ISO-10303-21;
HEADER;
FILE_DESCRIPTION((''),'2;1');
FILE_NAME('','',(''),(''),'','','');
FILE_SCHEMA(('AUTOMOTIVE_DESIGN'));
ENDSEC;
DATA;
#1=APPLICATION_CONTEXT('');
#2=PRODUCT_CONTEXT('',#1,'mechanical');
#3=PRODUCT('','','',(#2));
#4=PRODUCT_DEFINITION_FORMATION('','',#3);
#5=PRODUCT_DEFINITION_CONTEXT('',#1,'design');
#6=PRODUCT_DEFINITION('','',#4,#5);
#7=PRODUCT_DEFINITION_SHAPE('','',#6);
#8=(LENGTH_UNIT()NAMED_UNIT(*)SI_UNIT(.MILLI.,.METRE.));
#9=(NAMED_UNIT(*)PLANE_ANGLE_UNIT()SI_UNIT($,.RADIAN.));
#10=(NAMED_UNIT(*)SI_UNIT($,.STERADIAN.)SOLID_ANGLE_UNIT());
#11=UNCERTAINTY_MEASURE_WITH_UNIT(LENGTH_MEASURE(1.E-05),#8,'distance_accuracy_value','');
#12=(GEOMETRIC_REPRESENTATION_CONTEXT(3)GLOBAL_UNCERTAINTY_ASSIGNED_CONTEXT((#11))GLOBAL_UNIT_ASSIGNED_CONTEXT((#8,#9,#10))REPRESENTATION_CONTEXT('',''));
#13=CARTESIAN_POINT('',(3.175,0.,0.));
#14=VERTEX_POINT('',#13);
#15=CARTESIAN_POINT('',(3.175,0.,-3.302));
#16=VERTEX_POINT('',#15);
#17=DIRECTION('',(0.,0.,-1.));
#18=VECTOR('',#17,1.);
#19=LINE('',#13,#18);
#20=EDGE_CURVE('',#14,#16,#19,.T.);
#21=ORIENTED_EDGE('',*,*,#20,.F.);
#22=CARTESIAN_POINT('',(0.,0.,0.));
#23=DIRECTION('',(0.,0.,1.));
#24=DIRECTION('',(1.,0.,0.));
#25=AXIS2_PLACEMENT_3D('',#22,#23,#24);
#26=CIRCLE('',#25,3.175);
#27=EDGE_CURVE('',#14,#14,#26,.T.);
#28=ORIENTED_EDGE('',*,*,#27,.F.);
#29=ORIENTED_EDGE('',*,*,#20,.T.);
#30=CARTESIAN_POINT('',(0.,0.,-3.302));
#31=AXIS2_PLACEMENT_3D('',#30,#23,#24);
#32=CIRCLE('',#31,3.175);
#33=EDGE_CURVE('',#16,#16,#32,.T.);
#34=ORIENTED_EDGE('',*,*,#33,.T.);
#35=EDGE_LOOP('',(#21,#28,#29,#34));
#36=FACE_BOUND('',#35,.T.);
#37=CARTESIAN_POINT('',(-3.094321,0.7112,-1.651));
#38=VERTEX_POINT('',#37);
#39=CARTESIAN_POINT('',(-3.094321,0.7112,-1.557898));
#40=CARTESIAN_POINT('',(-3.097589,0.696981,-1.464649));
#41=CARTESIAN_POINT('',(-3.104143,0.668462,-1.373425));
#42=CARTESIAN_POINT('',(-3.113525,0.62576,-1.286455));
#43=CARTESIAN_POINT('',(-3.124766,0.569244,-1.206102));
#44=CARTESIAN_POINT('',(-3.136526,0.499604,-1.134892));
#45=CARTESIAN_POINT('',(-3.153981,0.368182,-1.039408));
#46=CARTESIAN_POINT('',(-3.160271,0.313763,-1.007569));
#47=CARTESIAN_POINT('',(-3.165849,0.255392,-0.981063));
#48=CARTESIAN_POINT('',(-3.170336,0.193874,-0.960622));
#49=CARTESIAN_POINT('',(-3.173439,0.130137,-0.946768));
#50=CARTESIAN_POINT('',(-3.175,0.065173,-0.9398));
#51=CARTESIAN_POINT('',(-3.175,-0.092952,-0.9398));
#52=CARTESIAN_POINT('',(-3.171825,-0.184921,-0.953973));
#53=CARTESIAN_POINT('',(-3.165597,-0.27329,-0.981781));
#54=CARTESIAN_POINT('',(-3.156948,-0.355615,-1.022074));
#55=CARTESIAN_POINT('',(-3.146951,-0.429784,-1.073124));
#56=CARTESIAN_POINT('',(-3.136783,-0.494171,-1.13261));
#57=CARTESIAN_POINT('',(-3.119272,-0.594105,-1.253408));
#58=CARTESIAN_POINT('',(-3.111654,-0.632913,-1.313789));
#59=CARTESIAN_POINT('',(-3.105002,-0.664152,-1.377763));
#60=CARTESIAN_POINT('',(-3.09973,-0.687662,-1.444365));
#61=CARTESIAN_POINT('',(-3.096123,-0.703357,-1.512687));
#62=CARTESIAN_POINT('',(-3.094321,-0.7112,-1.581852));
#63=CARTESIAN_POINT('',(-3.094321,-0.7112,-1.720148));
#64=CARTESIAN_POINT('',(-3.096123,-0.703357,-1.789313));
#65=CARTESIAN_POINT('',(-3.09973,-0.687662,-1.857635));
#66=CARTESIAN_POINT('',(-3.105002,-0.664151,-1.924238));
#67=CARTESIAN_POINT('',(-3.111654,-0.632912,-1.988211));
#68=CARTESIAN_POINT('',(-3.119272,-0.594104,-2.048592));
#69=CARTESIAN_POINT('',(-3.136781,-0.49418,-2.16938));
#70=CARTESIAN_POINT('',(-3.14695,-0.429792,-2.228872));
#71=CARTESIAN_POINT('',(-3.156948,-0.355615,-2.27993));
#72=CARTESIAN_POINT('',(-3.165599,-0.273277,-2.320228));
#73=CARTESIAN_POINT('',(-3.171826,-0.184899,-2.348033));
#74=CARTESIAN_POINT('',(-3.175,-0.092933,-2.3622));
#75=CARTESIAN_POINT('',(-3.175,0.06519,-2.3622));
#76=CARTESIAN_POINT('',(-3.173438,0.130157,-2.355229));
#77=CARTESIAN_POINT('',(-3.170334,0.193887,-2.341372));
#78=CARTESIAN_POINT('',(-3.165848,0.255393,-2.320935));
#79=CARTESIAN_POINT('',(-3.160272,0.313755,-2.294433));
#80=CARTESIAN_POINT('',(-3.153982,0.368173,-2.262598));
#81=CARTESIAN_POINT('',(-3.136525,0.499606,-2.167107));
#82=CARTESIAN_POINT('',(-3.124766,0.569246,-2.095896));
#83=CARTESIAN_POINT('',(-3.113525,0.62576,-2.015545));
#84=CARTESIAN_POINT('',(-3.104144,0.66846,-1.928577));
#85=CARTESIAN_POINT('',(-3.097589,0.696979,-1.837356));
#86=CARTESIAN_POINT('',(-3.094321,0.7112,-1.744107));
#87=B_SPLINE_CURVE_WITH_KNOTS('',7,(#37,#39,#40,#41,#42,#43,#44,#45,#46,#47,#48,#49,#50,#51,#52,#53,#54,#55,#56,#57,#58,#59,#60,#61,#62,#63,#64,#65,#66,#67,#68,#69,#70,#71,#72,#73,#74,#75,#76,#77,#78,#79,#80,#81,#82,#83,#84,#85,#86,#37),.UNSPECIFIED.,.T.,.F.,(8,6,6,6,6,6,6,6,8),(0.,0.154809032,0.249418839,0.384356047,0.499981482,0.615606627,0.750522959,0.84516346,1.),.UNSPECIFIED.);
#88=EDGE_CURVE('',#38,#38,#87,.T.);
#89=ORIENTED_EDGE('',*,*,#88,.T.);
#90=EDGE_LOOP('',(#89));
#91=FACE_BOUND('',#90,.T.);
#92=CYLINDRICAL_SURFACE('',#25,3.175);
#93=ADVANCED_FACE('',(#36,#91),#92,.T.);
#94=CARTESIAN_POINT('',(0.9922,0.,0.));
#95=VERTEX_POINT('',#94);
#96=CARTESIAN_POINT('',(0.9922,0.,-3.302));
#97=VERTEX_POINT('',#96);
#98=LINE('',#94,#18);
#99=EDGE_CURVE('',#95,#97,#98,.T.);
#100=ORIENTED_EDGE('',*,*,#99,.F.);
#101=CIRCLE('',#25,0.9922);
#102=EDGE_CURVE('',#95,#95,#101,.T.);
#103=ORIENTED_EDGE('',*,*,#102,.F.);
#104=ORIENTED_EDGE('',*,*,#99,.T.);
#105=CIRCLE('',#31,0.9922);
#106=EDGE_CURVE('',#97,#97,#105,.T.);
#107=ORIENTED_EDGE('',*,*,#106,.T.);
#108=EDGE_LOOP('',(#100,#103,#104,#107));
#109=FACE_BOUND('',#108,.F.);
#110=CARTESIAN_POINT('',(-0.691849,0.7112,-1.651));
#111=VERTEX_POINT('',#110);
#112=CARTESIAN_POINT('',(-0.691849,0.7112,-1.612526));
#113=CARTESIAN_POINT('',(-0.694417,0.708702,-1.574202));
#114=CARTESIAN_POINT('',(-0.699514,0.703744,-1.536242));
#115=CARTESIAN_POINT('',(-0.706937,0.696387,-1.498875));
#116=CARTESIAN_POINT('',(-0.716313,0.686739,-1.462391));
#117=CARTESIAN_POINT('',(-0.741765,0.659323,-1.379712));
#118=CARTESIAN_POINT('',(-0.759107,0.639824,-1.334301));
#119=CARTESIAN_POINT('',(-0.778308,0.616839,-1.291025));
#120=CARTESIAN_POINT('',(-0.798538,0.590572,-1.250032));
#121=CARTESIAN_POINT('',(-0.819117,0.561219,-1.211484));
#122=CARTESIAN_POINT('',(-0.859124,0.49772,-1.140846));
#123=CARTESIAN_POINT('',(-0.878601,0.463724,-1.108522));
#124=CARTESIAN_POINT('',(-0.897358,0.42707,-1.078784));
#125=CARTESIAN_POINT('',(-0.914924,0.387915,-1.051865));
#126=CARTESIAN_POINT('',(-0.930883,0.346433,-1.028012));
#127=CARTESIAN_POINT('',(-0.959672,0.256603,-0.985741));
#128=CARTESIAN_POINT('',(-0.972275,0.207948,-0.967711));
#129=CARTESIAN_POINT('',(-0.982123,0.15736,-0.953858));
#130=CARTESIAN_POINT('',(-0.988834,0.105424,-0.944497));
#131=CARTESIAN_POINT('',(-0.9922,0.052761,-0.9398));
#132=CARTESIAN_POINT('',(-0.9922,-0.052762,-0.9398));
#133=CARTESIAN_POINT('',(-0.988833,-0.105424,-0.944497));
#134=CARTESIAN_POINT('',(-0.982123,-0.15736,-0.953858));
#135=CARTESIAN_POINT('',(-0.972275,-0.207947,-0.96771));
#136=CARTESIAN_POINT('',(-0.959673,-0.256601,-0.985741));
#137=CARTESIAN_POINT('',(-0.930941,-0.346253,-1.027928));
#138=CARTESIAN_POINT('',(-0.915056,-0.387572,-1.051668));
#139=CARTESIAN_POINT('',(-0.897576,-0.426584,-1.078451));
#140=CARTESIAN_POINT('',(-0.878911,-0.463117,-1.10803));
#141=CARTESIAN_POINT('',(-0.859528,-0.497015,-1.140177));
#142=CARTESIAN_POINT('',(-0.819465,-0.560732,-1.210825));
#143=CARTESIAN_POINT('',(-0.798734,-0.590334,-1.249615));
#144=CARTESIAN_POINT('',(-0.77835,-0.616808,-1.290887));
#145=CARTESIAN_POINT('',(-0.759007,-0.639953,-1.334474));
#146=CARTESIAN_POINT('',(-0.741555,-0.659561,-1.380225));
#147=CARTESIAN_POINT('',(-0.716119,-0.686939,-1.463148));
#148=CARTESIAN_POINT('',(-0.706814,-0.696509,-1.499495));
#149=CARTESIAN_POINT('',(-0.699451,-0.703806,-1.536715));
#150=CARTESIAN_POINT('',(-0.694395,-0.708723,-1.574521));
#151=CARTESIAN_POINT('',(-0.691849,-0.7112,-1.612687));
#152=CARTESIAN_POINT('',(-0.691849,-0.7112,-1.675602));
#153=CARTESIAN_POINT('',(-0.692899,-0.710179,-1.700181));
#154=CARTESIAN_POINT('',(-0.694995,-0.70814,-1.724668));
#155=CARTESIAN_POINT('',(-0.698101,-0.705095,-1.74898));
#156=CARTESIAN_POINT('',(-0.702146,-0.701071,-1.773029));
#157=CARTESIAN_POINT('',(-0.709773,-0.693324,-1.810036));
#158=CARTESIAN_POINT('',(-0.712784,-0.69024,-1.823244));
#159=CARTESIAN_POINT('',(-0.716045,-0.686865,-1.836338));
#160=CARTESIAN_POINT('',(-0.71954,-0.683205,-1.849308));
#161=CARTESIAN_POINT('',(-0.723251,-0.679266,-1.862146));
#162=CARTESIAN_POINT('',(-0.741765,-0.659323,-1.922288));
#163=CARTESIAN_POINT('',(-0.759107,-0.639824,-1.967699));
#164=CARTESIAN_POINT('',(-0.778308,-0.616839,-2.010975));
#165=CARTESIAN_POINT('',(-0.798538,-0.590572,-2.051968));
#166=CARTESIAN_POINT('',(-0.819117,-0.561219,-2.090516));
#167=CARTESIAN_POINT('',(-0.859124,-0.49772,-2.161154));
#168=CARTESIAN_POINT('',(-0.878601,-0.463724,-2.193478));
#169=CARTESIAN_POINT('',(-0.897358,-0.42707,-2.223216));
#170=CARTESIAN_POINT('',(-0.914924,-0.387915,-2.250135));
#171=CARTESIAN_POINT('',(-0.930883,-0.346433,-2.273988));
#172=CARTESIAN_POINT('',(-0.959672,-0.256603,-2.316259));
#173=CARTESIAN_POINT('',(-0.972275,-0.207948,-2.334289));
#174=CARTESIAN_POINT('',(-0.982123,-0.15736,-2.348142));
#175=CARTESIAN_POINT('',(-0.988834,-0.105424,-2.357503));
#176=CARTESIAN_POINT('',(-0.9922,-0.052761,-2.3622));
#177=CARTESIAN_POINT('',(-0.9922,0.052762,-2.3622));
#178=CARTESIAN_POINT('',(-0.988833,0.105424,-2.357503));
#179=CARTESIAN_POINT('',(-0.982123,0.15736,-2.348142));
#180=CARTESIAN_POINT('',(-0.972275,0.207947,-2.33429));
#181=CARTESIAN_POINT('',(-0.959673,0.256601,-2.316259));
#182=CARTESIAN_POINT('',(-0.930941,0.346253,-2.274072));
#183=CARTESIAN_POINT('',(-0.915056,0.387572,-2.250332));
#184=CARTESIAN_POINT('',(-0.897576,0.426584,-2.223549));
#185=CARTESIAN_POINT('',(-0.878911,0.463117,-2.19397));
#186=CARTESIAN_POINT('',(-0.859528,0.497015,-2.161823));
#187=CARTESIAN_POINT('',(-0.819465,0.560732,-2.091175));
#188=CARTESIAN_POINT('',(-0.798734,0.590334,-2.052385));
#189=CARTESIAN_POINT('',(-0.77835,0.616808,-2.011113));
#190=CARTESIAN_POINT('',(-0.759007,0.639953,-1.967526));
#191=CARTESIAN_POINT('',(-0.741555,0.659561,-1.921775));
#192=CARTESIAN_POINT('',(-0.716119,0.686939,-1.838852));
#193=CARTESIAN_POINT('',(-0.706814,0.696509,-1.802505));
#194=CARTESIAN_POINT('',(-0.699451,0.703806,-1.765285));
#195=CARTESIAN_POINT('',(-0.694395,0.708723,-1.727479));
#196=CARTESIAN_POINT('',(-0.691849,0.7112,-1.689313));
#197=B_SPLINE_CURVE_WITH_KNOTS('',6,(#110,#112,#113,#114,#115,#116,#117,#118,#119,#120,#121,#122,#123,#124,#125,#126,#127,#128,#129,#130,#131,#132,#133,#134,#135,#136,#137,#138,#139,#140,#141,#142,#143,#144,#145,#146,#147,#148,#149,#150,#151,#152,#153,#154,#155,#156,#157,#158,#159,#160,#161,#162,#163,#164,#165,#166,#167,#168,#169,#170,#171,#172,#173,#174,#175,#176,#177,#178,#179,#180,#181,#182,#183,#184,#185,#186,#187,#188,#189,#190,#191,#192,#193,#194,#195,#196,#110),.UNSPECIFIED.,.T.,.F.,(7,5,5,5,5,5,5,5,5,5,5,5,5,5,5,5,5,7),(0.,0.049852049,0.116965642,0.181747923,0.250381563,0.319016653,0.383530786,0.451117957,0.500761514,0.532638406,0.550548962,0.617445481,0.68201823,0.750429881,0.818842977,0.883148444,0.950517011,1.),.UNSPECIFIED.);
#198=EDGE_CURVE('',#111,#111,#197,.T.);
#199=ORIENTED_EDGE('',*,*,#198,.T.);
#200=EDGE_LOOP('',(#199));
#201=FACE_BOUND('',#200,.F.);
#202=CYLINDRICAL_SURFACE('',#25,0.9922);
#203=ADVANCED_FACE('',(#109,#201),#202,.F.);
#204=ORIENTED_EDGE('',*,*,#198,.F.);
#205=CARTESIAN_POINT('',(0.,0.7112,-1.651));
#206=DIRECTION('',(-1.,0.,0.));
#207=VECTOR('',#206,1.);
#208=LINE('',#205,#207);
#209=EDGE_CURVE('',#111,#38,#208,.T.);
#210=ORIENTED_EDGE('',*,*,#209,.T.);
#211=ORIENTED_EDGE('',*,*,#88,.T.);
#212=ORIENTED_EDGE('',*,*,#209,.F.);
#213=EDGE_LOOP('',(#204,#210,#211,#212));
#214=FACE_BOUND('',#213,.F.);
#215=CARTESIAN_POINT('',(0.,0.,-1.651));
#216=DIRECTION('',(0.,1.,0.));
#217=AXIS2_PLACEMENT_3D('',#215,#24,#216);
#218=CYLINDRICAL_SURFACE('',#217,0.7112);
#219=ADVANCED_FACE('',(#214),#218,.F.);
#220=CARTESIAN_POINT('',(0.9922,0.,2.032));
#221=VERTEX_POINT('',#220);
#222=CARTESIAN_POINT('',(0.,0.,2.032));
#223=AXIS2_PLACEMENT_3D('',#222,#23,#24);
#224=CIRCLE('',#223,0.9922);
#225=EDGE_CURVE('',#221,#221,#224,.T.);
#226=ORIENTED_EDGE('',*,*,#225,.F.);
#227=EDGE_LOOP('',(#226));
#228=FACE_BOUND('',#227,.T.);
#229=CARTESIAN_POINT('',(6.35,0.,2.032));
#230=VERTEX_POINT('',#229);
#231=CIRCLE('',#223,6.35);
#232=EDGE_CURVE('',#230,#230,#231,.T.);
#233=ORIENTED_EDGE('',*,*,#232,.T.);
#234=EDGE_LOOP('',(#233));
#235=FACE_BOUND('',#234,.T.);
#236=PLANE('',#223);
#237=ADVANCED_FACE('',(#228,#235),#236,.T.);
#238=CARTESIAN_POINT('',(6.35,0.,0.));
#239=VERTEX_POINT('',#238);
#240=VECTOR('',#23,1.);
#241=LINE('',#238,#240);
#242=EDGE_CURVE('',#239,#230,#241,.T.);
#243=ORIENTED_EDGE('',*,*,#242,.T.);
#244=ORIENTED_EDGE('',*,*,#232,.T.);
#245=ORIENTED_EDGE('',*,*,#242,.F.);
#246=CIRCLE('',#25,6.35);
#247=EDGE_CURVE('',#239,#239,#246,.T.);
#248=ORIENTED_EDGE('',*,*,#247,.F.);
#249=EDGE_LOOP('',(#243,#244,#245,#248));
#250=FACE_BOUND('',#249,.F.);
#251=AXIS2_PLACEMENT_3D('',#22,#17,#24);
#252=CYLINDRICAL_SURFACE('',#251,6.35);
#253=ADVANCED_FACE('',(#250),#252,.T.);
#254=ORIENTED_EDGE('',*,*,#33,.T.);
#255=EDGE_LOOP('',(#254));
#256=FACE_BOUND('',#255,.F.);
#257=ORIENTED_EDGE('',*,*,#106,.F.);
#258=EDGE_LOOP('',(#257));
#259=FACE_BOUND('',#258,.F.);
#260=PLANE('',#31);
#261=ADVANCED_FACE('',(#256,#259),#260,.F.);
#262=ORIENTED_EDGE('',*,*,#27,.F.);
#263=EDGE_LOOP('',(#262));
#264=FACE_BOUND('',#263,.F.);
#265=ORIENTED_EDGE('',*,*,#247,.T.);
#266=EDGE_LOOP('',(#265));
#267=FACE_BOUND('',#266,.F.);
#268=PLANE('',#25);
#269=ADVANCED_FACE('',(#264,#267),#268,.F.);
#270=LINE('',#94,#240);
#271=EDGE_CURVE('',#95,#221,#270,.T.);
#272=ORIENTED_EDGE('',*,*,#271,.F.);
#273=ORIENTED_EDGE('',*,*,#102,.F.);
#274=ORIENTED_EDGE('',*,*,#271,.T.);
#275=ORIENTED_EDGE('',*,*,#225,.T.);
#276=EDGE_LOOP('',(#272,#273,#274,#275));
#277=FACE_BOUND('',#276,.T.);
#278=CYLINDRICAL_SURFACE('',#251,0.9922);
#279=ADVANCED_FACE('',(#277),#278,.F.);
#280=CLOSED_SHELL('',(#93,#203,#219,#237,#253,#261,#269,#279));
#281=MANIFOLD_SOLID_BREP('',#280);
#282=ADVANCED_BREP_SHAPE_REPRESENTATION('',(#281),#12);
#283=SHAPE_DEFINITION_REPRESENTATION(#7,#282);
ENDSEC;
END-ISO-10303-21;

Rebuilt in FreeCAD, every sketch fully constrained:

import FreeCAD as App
import Part
import Sketcher

V = App.Vector
Q = App.Units.Quantity

doc = App.newDocument("Part")
params = doc.addObject("Spreadsheet::Sheet", "Params")
for row, (alias, value) in enumerate([
    ("sketch1_diameter", "0.5 in"),
    ("sketch1_diameter2", "0.078126 in"),
    ("pad1_length", "0.08 in"),
    ("sketch2_diameter", "0.25 in"),
    ("sketch2_diameter2", "0.078126 in"),
    ("pad2_length", "0.13 in"),
    ("sketch3_diameter", "0.056 in"),
    ("pocket1_length", "0.13 in"),
], start=1):
    params.set(f"A{row}", alias)
    params.set(f"B{row}", "=" + value)
    params.setAlias(f"B{row}", alias)

body = doc.addObject("PartDesign::Body", "Body")

sketch1 = body.newObject("Sketcher::SketchObject", "Sketch")
sketch1.AttachmentSupport = (doc.getObject("XY_Plane"), [""])
sketch1.MapMode = "FlatFace"
sketch1.addGeometry([
    Part.Circle(V(0, 0, 0), V(0, 0, 1), 6.35),
    Part.Circle(V(0, 0, 0), V(0, 0, 1), 0.9922),
], False)
sketch1.addConstraint([
    Sketcher.Constraint("Coincident", 0, 3, -1, 1),
    Sketcher.Constraint("Coincident", 1, 3, -1, 1),
    Sketcher.Constraint("Diameter", 0, Q("0.5 in")),
    Sketcher.Constraint("Diameter", 1, Q("0.078126 in")),
])
sketch1.setExpression("Constraints[2]", "Params.sketch1_diameter")
sketch1.setExpression("Constraints[3]", "Params.sketch1_diameter2")
pad1 = body.newObject("PartDesign::Pad", "Pad")
pad1.Profile = sketch1
pad1.setExpression("Length", "Params.pad1_length")

sketch2 = body.newObject("Sketcher::SketchObject", "Sketch001")
sketch2.AttachmentSupport = (doc.getObject("XY_Plane"), [""])
sketch2.MapMode = "FlatFace"
sketch2.addGeometry([
    Part.Circle(V(0, 0, 0), V(0, 0, 1), 3.175),
    Part.Circle(V(0, 0, 0), V(0, 0, 1), 0.9922),
], False)
sketch2.addConstraint([
    Sketcher.Constraint("Coincident", 0, 3, -1, 1),
    Sketcher.Constraint("Coincident", 1, 3, -1, 1),
    Sketcher.Constraint("Diameter", 0, Q("0.25 in")),
    Sketcher.Constraint("Diameter", 1, Q("0.078126 in")),
])
sketch2.setExpression("Constraints[2]", "Params.sketch2_diameter")
sketch2.setExpression("Constraints[3]", "Params.sketch2_diameter2")
pad2 = body.newObject("PartDesign::Pad", "Pad001")
pad2.Profile = sketch2
pad2.setExpression("Length", "Params.pad2_length")
pad2.Reversed = True

sketch3 = body.newObject("Sketcher::SketchObject", "Sketch002")
sketch3.AttachmentSupport = (doc.getObject("YZ_Plane"), [""])
sketch3.MapMode = "FlatFace"
sketch3.addGeometry(Part.Circle(V(0, -1.651, 0), V(0, 0, 1), 0.7112), False)
sketch3.addConstraint([
    Sketcher.Constraint("PointOnObject", 0, 3, -2),
    Sketcher.Constraint("Diameter", 0, Q("0.056 in")),
    Sketcher.Constraint("DistanceY", 0, 3, -1, 1, Q("0.065 in")),
])
sketch3.setExpression("Constraints[1]", "Params.sketch3_diameter")
pocket1 = body.newObject("PartDesign::Pocket", "Pocket")
pocket1.Profile = sketch3
pocket1.setExpression("Length", "Params.pocket1_length")

doc.recompute()
